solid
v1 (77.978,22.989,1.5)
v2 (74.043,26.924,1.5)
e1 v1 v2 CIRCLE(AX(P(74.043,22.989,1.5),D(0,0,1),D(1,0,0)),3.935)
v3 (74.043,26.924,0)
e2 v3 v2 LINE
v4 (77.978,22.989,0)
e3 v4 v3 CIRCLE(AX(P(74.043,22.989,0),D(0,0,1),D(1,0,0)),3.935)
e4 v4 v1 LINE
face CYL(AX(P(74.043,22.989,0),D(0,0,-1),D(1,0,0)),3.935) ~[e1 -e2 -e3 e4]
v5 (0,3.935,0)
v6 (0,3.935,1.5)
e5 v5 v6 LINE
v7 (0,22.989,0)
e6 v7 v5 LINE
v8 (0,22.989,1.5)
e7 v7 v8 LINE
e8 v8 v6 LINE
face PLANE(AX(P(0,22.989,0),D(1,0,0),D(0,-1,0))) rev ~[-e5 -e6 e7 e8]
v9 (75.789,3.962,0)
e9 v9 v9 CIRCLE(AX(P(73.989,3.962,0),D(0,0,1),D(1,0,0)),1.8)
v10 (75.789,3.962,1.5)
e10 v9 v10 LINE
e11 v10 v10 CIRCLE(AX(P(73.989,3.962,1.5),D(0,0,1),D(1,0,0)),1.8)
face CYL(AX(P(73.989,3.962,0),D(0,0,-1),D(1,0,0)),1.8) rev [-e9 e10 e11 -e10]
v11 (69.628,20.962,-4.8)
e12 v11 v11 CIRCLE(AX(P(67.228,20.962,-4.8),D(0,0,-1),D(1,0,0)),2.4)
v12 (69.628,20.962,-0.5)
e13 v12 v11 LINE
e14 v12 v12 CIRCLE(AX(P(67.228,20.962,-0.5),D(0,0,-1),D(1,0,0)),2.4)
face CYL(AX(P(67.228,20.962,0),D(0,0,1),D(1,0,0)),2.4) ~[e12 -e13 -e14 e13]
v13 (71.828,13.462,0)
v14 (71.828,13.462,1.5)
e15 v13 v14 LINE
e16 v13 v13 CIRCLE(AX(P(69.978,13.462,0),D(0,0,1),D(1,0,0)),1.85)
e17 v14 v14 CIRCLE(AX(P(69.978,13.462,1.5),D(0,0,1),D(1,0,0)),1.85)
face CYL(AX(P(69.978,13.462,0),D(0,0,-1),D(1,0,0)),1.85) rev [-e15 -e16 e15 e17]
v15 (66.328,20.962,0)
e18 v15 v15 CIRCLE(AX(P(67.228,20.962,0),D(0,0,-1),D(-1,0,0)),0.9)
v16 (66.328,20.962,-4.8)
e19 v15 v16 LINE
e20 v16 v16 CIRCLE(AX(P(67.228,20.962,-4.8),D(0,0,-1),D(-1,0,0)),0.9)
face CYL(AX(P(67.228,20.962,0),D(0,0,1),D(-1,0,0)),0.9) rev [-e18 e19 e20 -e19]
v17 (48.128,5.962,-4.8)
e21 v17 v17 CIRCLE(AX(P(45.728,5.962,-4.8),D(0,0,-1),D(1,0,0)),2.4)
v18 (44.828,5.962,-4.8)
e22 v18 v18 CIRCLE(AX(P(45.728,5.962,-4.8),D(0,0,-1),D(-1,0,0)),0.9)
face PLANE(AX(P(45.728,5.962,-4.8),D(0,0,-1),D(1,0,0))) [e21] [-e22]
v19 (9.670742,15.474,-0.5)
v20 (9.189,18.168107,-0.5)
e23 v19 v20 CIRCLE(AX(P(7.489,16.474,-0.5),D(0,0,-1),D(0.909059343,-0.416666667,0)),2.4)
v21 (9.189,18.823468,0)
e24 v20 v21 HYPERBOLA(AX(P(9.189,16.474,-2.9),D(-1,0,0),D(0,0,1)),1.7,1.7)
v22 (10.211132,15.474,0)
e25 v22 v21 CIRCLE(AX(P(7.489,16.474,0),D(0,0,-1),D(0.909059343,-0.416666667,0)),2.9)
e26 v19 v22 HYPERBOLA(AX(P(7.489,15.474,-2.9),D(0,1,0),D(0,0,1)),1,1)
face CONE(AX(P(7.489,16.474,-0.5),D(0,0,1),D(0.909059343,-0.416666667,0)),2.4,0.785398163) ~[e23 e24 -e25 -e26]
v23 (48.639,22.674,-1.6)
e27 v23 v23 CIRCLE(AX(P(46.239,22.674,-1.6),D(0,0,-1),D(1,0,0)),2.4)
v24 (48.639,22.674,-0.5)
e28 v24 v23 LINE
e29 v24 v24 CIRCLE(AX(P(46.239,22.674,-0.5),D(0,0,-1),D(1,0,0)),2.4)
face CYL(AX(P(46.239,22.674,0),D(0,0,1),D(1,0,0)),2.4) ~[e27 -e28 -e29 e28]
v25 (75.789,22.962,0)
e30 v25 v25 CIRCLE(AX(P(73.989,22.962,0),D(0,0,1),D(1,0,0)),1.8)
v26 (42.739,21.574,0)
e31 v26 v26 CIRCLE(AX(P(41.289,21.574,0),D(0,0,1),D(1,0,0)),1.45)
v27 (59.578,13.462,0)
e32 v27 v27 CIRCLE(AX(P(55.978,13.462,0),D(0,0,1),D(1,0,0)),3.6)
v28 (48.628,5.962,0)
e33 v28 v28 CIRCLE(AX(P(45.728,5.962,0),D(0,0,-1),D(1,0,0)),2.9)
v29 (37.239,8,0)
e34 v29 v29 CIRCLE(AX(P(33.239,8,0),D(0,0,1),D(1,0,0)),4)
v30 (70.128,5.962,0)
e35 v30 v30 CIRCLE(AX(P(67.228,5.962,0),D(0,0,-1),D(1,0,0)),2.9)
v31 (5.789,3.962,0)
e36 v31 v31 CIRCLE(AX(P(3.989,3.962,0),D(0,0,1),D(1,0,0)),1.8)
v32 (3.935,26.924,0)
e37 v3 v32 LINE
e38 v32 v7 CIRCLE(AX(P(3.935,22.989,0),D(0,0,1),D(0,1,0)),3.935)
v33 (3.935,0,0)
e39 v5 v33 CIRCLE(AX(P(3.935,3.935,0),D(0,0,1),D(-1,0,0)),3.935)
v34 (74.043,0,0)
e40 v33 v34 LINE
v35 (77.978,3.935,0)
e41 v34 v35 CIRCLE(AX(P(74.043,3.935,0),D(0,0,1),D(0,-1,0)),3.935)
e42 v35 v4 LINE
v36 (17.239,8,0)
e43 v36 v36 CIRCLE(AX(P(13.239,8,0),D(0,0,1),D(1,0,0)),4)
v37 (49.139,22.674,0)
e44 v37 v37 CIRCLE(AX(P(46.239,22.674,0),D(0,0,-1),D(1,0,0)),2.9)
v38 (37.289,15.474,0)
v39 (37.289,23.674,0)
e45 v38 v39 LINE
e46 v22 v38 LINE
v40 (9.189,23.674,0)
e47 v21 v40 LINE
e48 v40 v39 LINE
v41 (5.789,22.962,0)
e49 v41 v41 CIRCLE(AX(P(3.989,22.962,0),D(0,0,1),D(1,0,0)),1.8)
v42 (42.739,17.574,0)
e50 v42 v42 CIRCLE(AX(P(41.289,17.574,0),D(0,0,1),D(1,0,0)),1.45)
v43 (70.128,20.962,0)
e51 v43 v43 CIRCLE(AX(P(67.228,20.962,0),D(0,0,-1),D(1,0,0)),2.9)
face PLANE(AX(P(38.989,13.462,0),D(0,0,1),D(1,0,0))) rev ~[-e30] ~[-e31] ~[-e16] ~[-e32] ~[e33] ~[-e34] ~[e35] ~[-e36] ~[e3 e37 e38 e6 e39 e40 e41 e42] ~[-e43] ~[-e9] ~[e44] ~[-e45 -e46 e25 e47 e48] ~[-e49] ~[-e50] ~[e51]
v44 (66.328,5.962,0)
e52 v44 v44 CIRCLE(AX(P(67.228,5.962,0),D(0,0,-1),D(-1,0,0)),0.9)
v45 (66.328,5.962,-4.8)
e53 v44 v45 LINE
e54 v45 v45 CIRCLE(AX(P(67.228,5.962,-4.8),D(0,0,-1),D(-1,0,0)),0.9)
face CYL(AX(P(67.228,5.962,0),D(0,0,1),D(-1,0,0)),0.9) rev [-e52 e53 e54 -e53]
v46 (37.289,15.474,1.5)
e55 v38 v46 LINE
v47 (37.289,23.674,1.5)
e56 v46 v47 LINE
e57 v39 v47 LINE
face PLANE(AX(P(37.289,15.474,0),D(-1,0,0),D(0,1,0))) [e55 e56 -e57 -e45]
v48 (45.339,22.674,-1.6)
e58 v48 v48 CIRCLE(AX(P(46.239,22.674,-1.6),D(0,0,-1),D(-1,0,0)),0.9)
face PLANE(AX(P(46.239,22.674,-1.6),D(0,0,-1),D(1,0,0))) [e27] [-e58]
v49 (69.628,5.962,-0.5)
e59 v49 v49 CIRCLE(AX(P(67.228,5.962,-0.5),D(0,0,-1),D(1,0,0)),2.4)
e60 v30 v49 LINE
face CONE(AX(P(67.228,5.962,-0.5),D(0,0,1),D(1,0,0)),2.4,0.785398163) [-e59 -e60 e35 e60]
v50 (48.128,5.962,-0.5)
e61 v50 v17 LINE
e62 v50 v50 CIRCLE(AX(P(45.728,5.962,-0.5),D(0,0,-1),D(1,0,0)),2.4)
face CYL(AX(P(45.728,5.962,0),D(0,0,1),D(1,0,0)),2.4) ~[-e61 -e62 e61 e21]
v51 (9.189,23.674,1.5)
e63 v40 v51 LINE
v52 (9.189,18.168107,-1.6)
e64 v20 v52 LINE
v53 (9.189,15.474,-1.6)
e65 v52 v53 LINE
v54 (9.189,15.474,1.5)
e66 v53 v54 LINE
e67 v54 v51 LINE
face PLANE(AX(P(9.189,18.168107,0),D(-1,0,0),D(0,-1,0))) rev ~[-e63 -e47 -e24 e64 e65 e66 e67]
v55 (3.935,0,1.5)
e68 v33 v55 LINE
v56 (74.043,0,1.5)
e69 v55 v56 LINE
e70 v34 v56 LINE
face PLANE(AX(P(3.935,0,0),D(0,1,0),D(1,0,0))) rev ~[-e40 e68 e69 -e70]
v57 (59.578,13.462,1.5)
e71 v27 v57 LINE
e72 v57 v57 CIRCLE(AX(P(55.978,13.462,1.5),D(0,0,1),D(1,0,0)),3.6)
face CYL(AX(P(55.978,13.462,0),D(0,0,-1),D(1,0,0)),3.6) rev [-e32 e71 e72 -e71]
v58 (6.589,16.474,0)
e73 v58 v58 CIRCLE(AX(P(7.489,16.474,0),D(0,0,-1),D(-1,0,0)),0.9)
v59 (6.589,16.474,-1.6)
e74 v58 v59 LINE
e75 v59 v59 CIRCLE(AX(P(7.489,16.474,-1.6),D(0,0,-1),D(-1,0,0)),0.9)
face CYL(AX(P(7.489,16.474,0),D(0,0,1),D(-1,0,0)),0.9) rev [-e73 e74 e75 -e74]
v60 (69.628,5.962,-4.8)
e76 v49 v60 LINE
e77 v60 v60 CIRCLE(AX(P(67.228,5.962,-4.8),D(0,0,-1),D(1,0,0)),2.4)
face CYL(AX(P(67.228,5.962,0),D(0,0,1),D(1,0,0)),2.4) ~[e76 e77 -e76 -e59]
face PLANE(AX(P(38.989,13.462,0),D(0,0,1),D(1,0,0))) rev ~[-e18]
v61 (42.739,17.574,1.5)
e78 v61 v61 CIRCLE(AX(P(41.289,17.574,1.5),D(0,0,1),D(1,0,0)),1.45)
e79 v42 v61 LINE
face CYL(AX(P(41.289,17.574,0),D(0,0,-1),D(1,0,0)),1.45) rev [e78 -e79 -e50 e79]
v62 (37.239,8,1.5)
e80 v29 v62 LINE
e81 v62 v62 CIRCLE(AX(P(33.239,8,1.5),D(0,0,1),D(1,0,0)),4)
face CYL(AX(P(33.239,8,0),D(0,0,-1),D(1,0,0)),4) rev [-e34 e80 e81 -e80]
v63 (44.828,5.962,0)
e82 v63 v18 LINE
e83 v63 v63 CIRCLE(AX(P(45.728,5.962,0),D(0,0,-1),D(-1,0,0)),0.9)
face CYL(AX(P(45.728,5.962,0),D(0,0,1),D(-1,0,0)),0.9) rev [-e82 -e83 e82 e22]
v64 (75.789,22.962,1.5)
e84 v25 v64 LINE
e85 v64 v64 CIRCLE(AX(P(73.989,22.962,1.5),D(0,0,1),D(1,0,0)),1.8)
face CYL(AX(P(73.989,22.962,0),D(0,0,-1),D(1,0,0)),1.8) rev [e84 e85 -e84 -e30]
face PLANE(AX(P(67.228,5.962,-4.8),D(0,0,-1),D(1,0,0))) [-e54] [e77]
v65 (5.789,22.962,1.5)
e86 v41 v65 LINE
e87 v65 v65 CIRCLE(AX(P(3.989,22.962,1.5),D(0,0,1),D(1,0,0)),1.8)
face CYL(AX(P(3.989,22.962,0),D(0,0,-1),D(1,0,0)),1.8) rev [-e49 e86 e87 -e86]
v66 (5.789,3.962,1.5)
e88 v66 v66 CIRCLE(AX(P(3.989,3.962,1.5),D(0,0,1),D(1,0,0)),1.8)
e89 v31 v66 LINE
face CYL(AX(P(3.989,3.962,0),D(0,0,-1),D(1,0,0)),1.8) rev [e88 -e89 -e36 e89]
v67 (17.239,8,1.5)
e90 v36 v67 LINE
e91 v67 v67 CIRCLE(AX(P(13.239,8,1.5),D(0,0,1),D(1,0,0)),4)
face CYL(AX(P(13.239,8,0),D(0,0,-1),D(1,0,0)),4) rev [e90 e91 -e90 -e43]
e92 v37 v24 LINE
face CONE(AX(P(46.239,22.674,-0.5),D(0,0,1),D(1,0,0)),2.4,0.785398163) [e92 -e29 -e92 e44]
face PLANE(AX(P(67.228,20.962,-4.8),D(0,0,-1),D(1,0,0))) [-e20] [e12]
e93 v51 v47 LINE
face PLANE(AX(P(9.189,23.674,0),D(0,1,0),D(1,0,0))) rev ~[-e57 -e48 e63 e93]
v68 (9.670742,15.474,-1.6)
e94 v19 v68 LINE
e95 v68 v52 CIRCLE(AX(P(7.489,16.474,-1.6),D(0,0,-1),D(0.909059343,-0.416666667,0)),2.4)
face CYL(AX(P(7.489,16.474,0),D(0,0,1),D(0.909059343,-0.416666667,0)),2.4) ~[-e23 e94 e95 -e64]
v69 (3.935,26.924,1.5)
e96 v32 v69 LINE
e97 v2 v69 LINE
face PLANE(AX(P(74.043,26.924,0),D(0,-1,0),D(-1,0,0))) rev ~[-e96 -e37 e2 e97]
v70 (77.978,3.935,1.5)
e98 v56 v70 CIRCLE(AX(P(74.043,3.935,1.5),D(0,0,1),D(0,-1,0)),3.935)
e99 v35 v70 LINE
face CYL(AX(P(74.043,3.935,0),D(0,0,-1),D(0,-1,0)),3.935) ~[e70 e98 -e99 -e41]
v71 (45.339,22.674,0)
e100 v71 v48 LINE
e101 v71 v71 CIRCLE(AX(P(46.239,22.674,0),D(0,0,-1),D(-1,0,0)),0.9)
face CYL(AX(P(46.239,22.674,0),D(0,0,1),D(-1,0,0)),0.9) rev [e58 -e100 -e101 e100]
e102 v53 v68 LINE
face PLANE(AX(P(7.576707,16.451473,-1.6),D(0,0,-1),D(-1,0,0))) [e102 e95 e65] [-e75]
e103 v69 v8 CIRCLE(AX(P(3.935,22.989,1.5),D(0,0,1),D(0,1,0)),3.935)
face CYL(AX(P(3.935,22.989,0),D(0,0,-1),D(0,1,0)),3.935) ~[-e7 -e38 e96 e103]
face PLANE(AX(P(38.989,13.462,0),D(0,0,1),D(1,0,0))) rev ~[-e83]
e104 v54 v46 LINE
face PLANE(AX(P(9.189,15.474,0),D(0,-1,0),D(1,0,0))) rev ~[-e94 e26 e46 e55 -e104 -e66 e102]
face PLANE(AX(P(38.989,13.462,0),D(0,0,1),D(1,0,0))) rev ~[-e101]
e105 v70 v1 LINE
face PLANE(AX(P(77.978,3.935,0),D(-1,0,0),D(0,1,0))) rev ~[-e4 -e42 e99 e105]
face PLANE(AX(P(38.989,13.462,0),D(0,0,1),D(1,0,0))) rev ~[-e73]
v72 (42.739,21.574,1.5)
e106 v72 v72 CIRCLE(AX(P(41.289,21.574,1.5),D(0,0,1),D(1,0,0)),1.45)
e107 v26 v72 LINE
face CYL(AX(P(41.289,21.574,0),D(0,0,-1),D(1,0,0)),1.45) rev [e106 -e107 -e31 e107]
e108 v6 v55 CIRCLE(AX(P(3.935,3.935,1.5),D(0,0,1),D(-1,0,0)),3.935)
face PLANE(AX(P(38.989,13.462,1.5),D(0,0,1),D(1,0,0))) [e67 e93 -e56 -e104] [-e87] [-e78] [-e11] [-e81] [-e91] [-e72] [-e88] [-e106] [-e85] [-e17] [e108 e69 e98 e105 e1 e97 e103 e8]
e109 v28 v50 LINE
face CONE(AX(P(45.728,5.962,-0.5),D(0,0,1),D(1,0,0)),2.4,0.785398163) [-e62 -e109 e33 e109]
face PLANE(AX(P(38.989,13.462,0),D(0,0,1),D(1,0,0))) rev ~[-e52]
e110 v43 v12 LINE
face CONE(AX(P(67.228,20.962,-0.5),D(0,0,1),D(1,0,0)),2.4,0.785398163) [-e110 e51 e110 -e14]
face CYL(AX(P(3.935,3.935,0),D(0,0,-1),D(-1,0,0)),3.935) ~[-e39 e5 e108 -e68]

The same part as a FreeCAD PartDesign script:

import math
import FreeCAD as App
import Part
import Sketcher


def edges_at(feature, points):
    """Names of the edges that pass closest to the given points."""
    edges = feature.Shape.Edges
    near = lambda p: min(range(len(edges)), key=lambda i: edges[i].distToShape(Part.Vertex(*p))[0])
    return sorted({f"Edge{near(p) + 1}" for p in points})

doc = App.newDocument("Part")
params = doc.addObject("Spreadsheet::Sheet", "Params")
for row, (alias, value) in enumerate([
    ("sketch1_diameter", "8 mm"),
    ("sketch1_diameter2", "3.6 mm"),
    ("sketch1_diameter3", "7.2 mm"),
    ("sketch1_diameter4", "2.9 mm"),
    ("sketch1_diameter5", "3.7 mm"),
    ("pad1_length", "1.5 mm"),
    ("sketch2_diameter", "4.8 mm"),
    ("sketch2_diameter2", "1.8 mm"),
    ("sketch2_width", "1.7 mm"),
    ("pad2_length", "1.6 mm"),
    ("sketch3_diameter", "4.8 mm"),
    ("sketch3_diameter2", "1.8 mm"),
    ("pad3_length", "4.8 mm"),
    ("chamfer_size", "0.5 mm"),
], start=1):
    params.set(f"A{row}", alias)
    params.set(f"B{row}", "=" + value)
    params.setAlias(f"B{row}", alias)

body = doc.addObject("PartDesign::Body", "Body")

# Sketch on XY plane
sketch1 = body.newObject("Sketcher::SketchObject", "Sketch")
sketch1.AttachmentSupport = (doc.getObject("XY_Plane"), [""])
sketch1.MapMode = "FlatFace"
sketch1.addGeometry([
    Part.LineSegment(App.Vector(0, 23, 0), App.Vector(0, 3.9, 0)),  # 0
    Part.ArcOfCircle(Part.Circle(App.Vector(3.9, 3.9, 0), App.Vector(0, 0, 1), 3.9), math.radians(180), math.radians(270)),  # 1
    Part.LineSegment(App.Vector(3.9, 0, 0), App.Vector(74, 0, 0)),  # 2
    Part.ArcOfCircle(Part.Circle(App.Vector(74, 3.9, 0), App.Vector(0, 0, 1), 3.9), math.radians(-90), math.radians(0)),  # 3
    Part.LineSegment(App.Vector(78, 3.9, 0), App.Vector(78, 23, 0)),  # 4
    Part.ArcOfCircle(Part.Circle(App.Vector(74, 23, 0), App.Vector(0, 0, 1), 3.9), math.radians(0), math.radians(90)),  # 5
    Part.LineSegment(App.Vector(74, 26.9, 0), App.Vector(3.9, 26.9, 0)),  # 6
    Part.ArcOfCircle(Part.Circle(App.Vector(3.9, 23, 0), App.Vector(0, 0, 1), 3.9), math.radians(90), math.radians(180)),  # 7
    Part.Circle(App.Vector(4, 4, 0), App.Vector(0, 0, 1), 1.8),  # 8
    Part.Circle(App.Vector(13.2, 8, 0), App.Vector(0, 0, 1), 4),  # 9
    Part.Circle(App.Vector(33.2, 8, 0), App.Vector(0, 0, 1), 4),  # 10
    Part.Circle(App.Vector(74, 4, 0), App.Vector(0, 0, 1), 1.8),  # 11
    Part.Circle(App.Vector(4, 23, 0), App.Vector(0, 0, 1), 1.8),  # 12
    Part.LineSegment(App.Vector(37.3, 15.5, 0), App.Vector(9.2, 15.5, 0)),  # 13
    Part.LineSegment(App.Vector(9.2, 15.5, 0), App.Vector(9.2, 23.7, 0)),  # 14
    Part.LineSegment(App.Vector(9.2, 23.7, 0), App.Vector(37.3, 23.7, 0)),  # 15
    Part.LineSegment(App.Vector(37.3, 23.7, 0), App.Vector(37.3, 15.5, 0)),  # 16
    Part.Circle(App.Vector(56, 13.5, 0), App.Vector(0, 0, 1), 3.6),  # 17
    Part.Circle(App.Vector(41.3, 17.6, 0), App.Vector(0, 0, 1), 1.4),  # 18
    Part.Circle(App.Vector(70, 13.5, 0), App.Vector(0, 0, 1), 1.9),  # 19
    Part.Circle(App.Vector(41.3, 21.6, 0), App.Vector(0, 0, 1), 1.4),  # 20
    Part.Circle(App.Vector(74, 23, 0), App.Vector(0, 0, 1), 1.8),  # 21
], False)
sketch1.addConstraint([
    Sketcher.Constraint("Tangent", 0, 2, 1, 1),
    Sketcher.Constraint("Tangent", 1, 2, 2, 1),
    Sketcher.Constraint("Tangent", 2, 2, 3, 1),
    Sketcher.Constraint("Tangent", 3, 2, 4, 1),
    Sketcher.Constraint("Tangent", 4, 2, 5, 1),
    Sketcher.Constraint("Tangent", 5, 2, 6, 1),
    Sketcher.Constraint("Tangent", 6, 2, 7, 1),
    Sketcher.Constraint("Tangent", 7, 2, 0, 1),
    Sketcher.Constraint("Coincident", 13, 2, 14, 1),
    Sketcher.Constraint("Coincident", 14, 2, 15, 1),
    Sketcher.Constraint("Coincident", 15, 2, 16, 1),
    Sketcher.Constraint("Coincident", 16, 2, 13, 1),
    Sketcher.Constraint("Vertical", 0),
    Sketcher.Constraint("Horizontal", 2),
    Sketcher.Constraint("Vertical", 4),
    Sketcher.Constraint("Horizontal", 6),
    Sketcher.Constraint("Horizontal", 13),
    Sketcher.Constraint("Vertical", 14),
    Sketcher.Constraint("Horizontal", 15),
    Sketcher.Constraint("Vertical", 16),
    Sketcher.Constraint("Equal", 1, 3),
    Sketcher.Constraint("Equal", 3, 5),
    Sketcher.Constraint("Equal", 5, 7),
    Sketcher.Constraint("Equal", 9, 10),
    Sketcher.Constraint("Equal", 8, 11),
    Sketcher.Constraint("Equal", 11, 12),
    Sketcher.Constraint("Equal", 18, 20),
    Sketcher.Constraint("Equal", 12, 21),
    Sketcher.Constraint("PointOnObject", 0, 2, -2),
    Sketcher.Constraint("PointOnObject", 1, 2, -1),
    Sketcher.Constraint("Horizontal", 9, 3, 10, 3),
    Sketcher.Constraint("Horizontal", 8, 3, 11, 3),
    Sketcher.Constraint("Horizontal", 17, 3, 19, 3),
    Sketcher.Constraint("Horizontal", 12, 3, 21, 3),
    Sketcher.Constraint("Vertical", 8, 3, 12, 3),
    Sketcher.Constraint("Vertical", 18, 3, 20, 3),
    Sketcher.Constraint("Vertical", 11, 3, 21, 3),
    Sketcher.Constraint("Diameter", 9, 8.0),
    Sketcher.Constraint("Diameter", 8, 3.6),
    Sketcher.Constraint("Diameter", 17, 7.2),
    Sketcher.Constraint("Diameter", 18, 2.9),
    Sketcher.Constraint("Diameter", 19, 3.7),
    Sketcher.Constraint("DistanceX", 13, 2, 13, 1, 28.1),
    Sketcher.Constraint("DistanceY", 14, 1, 14, 2, 8.2),
    Sketcher.Constraint("DistanceY", -1, 1, 9, 3, 8.0),
    Sketcher.Constraint("Radius", 1, 3.935),
    Sketcher.Constraint("DistanceX", 9, 3, 10, 3, 20.0),
    Sketcher.Constraint("DistanceX", 8, 3, 11, 3, 70.0),
    Sketcher.Constraint("DistanceY", 8, 3, 12, 3, 19.0),
    Sketcher.Constraint("DistanceX", 17, 3, 19, 3, 14.0),
    Sketcher.Constraint("DistanceY", 18, 3, 20, 3, 4.0),
    Sketcher.Constraint("DistanceX", 19, 3, 3, 2, 8.0),
    Sketcher.Constraint("DistanceX", 15, 2, 20, 3, 4.0),
    Sketcher.Constraint("DistanceY", 11, 3, 17, 3, 9.5),
    Sketcher.Constraint("DistanceX", 18, 3, 11, 3, 32.7),
    Sketcher.Constraint("DistanceY", 20, 3, 15, 2, 2.1),
    Sketcher.Constraint("DistanceX", 2, 1, 2, 2, 70.108),
    Sketcher.Constraint("DistanceY", 0, 2, 0, 1, 19.054),
    Sketcher.Constraint("DistanceX", 8, 3, 9, 3, 9.25),
    Sketcher.Constraint("DistanceY", 13, 2, 6, 2, 11.45),
    Sketcher.Constraint("DistanceX", -1, 1, 8, 3, 3.989),
    Sketcher.Constraint("DistanceY", -1, 1, 8, 3, 3.962),
])
sketch1.setExpression("Constraints[37]", "Params.sketch1_diameter")
sketch1.setExpression("Constraints[38]", "Params.sketch1_diameter2")
sketch1.setExpression("Constraints[39]", "Params.sketch1_diameter3")
sketch1.setExpression("Constraints[40]", "Params.sketch1_diameter4")
sketch1.setExpression("Constraints[41]", "Params.sketch1_diameter5")
pad1 = body.newObject("PartDesign::Pad", "Pad")
pad1.Profile = sketch1
pad1.setExpression("Length", "Params.pad1_length")

# Sketch on XY plane
sketch2 = body.newObject("Sketcher::SketchObject", "Sketch001")
sketch2.AttachmentSupport = (doc.getObject("XY_Plane"), [""])
sketch2.MapMode = "FlatFace"
sketch2.addGeometry([
    Part.Circle(App.Vector(46.24, 22.67, 0), App.Vector(0, 0, 1), 2.4),  # 0
    Part.Circle(App.Vector(46.24, 22.67, 0), App.Vector(0, 0, 1), 0.9),  # 1
    Part.LineSegment(App.Vector(9.19, 15.47, 0), App.Vector(9.67, 15.47, 0)),  # 2
    Part.ArcOfCircle(Part.Circle(App.Vector(7.49, 16.47, 0), App.Vector(0, 0, 1), 2.4), math.radians(45), math.radians(335)),  # 3
    Part.LineSegment(App.Vector(9.19, 18.17, 0), App.Vector(9.19, 15.47, 0)),  # 4
    Part.Circle(App.Vector(7.49, 16.47, 0), App.Vector(0, 0, 1), 0.9),  # 5
], False)
sketch2.addConstraint([
    Sketcher.Constraint("Coincident", 2, 2, 3, 2),
    Sketcher.Constraint("Coincident", 3, 1, 4, 1),
    Sketcher.Constraint("Coincident", 4, 2, 2, 1),
    Sketcher.Constraint("Horizontal", 2),
    Sketcher.Constraint("Vertical", 4),
    Sketcher.Constraint("Coincident", 1, 3, 0, 3),
    Sketcher.Constraint("Coincident", 5, 3, 3, 3),
    Sketcher.Constraint("Equal", 0, 3),
    Sketcher.Constraint("Equal", 1, 5),
    Sketcher.Constraint("Diameter", 0, 4.8),
    Sketcher.Constraint("Diameter", 1, 1.8),
    Sketcher.Constraint("DistanceY", 2, 2, 3, 3, 1.0),
    Sketcher.Constraint("DistanceY", 3, 3, 0, 3, 6.2),
    Sketcher.Constraint("DistanceX", 3, 3, 3, 1, 1.7),
    Sketcher.Constraint("DistanceX", 3, 3, 0, 3, 38.75),
    Sketcher.Constraint("DistanceX", -1, 1, 0, 3, 46.239),
    Sketcher.Constraint("DistanceY", -1, 1, 0, 3, 22.674),
])
sketch2.setExpression("Constraints[9]", "Params.sketch2_diameter")
sketch2.setExpression("Constraints[10]", "Params.sketch2_diameter2")
sketch2.setExpression("Constraints[13]", "Params.sketch2_width")
pad2 = body.newObject("PartDesign::Pad", "Pad001")
pad2.Profile = sketch2
pad2.setExpression("Length", "Params.pad2_length")
pad2.Reversed = True

# Sketch on XY plane
sketch3 = body.newObject("Sketcher::SketchObject", "Sketch002")
sketch3.AttachmentSupport = (doc.getObject("XY_Plane"), [""])
sketch3.MapMode = "FlatFace"
sketch3.addGeometry([
    Part.Circle(App.Vector(67.2, 21, 0), App.Vector(0, 0, 1), 2.4),  # 0
    Part.Circle(App.Vector(67.2, 21, 0), App.Vector(0, 0, 1), 0.9),  # 1
    Part.Circle(App.Vector(67.2, 6, 0), App.Vector(0, 0, 1), 2.4),  # 2
    Part.Circle(App.Vector(67.2, 6, 0), App.Vector(0, 0, 1), 0.9),  # 3
    Part.Circle(App.Vector(45.7, 6, 0), App.Vector(0, 0, 1), 2.4),  # 4
    Part.Circle(App.Vector(45.7, 6, 0), App.Vector(0, 0, 1), 0.9),  # 5
], False)
sketch3.addConstraint([
    Sketcher.Constraint("Coincident", 1, 3, 0, 3),
    Sketcher.Constraint("Coincident", 3, 3, 2, 3),
    Sketcher.Constraint("Coincident", 5, 3, 4, 3),
    Sketcher.Constraint("Equal", 0, 2),
    Sketcher.Constraint("Equal", 1, 3),
    Sketcher.Constraint("Equal", 2, 4),
    Sketcher.Constraint("Equal", 3, 5),
    Sketcher.Constraint("Horizontal", 3, 3, 4, 3),
    Sketcher.Constraint("Vertical", 1, 3, 2, 3),
    Sketcher.Constraint("Diameter", 0, 4.8),
    Sketcher.Constraint("Diameter", 1, 1.8),
    Sketcher.Constraint("DistanceY", 2, 3, 0, 3, 15.0),
    Sketcher.Constraint("DistanceX", 4, 3, 2, 3, 21.5),
    Sketcher.Constraint("DistanceX", -1, 1, 0, 3, 67.228),
    Sketcher.Constraint("DistanceY", -1, 1, 0, 3, 20.962),
])
sketch3.setExpression("Constraints[9]", "Params.sketch3_diameter")
sketch3.setExpression("Constraints[10]", "Params.sketch3_diameter2")
pad3 = body.newObject("PartDesign::Pad", "Pad002")
pad3.Profile = sketch3
pad3.setExpression("Length", "Params.pad3_length")
pad3.Reversed = True
doc.recompute()

chamfer = body.newObject("PartDesign::Chamfer", "Chamfer")
chamfer.Base = (pad3, edges_at(pad3, [
    (5.126, 16.052, 0),
    (43.839, 22.674, 0),
    (64.828, 20.962, 0),
    (64.828, 5.962, 0),
    (43.328, 5.962, 0),
]))
chamfer.setExpression("Size", "Params.chamfer_size")

doc.recompute()
